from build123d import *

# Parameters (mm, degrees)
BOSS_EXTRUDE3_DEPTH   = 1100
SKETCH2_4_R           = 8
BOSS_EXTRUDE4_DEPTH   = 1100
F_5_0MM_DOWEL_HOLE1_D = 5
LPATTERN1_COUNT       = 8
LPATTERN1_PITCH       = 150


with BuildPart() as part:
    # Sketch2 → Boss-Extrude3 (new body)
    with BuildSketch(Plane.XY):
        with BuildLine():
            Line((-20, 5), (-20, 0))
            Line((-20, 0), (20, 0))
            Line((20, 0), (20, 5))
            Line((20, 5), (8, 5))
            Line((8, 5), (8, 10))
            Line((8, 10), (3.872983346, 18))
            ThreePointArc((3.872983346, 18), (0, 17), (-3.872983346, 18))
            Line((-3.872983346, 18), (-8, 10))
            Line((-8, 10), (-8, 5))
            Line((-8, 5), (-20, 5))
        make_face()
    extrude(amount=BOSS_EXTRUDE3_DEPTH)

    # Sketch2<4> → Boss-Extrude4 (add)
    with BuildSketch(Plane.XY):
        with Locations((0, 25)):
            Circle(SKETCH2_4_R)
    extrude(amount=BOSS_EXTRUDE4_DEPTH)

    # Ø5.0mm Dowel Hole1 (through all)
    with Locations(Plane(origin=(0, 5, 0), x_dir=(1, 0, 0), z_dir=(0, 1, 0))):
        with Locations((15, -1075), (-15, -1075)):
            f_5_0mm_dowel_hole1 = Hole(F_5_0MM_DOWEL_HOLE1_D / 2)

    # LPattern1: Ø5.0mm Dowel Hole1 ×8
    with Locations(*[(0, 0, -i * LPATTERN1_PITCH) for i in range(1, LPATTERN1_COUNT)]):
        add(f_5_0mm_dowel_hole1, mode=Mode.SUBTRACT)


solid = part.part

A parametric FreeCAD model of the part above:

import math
import FreeCAD as App
import Part
import Sketcher

doc = App.newDocument("Part")
body = doc.addObject("PartDesign::Body", "Body")

sketch1 = body.newObject("Sketcher::SketchObject", "Sketch")
sketch1.AttachmentSupport = (doc.getObject("XY_Plane"), [""])
sketch1.MapMode = "FlatFace"
sketch1.addGeometry(Part.LineSegment(App.Vector(-20, 5, 0), App.Vector(-20, 0, 0)), False)
sketch1.addGeometry(Part.LineSegment(App.Vector(-20, 0, 0), App.Vector(20, 0, 0)), False)
sketch1.addGeometry(Part.LineSegment(App.Vector(20, 0, 0), App.Vector(20, 5, 0)), False)
sketch1.addGeometry(Part.LineSegment(App.Vector(20, 5, 0), App.Vector(8, 5, 0)), False)
sketch1.addGeometry(Part.LineSegment(App.Vector(8, 5, 0), App.Vector(8, 10, 0)), False)
sketch1.addGeometry(Part.LineSegment(App.Vector(8, 10, 0), App.Vector(4, 18, 0)), False)
sketch1.addGeometry(Part.ArcOfCircle(Part.Circle(App.Vector(0, 25, 0), App.Vector(0, 0, 1), 8), math.radians(-119), math.radians(-61)), False)
sketch1.addGeometry(Part.LineSegment(App.Vector(-4, 18, 0), App.Vector(-8, 10, 0)), False)
sketch1.addGeometry(Part.LineSegment(App.Vector(-8, 10, 0), App.Vector(-8, 5, 0)), False)
sketch1.addGeometry(Part.LineSegment(App.Vector(-8, 5, 0), App.Vector(-20, 5, 0)), False)
sketch1.addConstraint(Sketcher.Constraint("Coincident", 0, 2, 1, 1))
sketch1.addConstraint(Sketcher.Constraint("Coincident", 1, 2, 2, 1))
sketch1.addConstraint(Sketcher.Constraint("Coincident", 2, 2, 3, 1))
sketch1.addConstraint(Sketcher.Constraint("Coincident", 3, 2, 4, 1))
sketch1.addConstraint(Sketcher.Constraint("Coincident", 4, 2, 5, 1))
sketch1.addConstraint(Sketcher.Constraint("Coincident", 5, 2, 6, 2))
sketch1.addConstraint(Sketcher.Constraint("Coincident", 6, 1, 7, 1))
sketch1.addConstraint(Sketcher.Constraint("Coincident", 7, 2, 8, 1))
sketch1.addConstraint(Sketcher.Constraint("Coincident", 8, 2, 9, 1))
sketch1.addConstraint(Sketcher.Constraint("Coincident", 9, 2, 0, 1))
sketch1.addConstraint(Sketcher.Constraint("Vertical", 0))
sketch1.addConstraint(Sketcher.Constraint("Horizontal", 1))
sketch1.addConstraint(Sketcher.Constraint("Vertical", 2))
sketch1.addConstraint(Sketcher.Constraint("Horizontal", 3))
sketch1.addConstraint(Sketcher.Constraint("Vertical", 4))
sketch1.addConstraint(Sketcher.Constraint("Vertical", 8))
sketch1.addConstraint(Sketcher.Constraint("Horizontal", 9))
sketch1.addConstraint(Sketcher.Constraint("Symmetric", 0, 2, 1, 2, -1, 1))
sketch1.addConstraint(Sketcher.Constraint("Symmetric", 5, 2, 6, 1, -2))
sketch1.addConstraint(Sketcher.Constraint("Symmetric", 4, 2, 7, 2, -2))
sketch1.addConstraint(Sketcher.Constraint("Horizontal", 3, 2, 8, 2))
sketch1.addConstraint(Sketcher.Constraint("Equal", 2, 4))
sketch1.addConstraint(Sketcher.Constraint("Radius", 6, 8.0))
sketch1.addConstraint(Sketcher.Constraint("DistanceX", 1, 1, 1, 2, 40.0))
sketch1.addConstraint(Sketcher.Constraint("DistanceX", 3, 2, 3, 1, 12.0))
sketch1.addConstraint(Sketcher.Constraint("DistanceY", 0, 2, 0, 1, 5.0))
sketch1.addConstraint(Sketcher.Constraint("DistanceY", -1, 1, 6, 3, 25.0))
sketch1.addConstraint(Sketcher.Constraint("DistanceY", -1, 1, 5, 2, 18.0))
pad1 = body.newObject("PartDesign::Pad", "Pad")
pad1.Profile = sketch1
pad1.Length = 1100

sketch2 = body.newObject("Sketcher::SketchObject", "Sketch001")
sketch2.AttachmentSupport = (doc.getObject("XY_Plane"), [""])
sketch2.MapMode = "FlatFace"
sketch2.addGeometry(Part.Circle(App.Vector(0, 25, 0), App.Vector(0, 0, 1), 8), False)
sketch2.addConstraint(Sketcher.Constraint("PointOnObject", 0, 3, -2))
sketch2.addConstraint(Sketcher.Constraint("Diameter", 0, 16.0))
sketch2.addConstraint(Sketcher.Constraint("DistanceY", -1, 1, 0, 3, 25.0))
pad2 = body.newObject("PartDesign::Pad", "Pad001")
pad2.Profile = sketch2
pad2.Length = 1100

sketch3 = body.newObject("Sketcher::SketchObject", "Sketch002")
sketch3.AttachmentSupport = (doc.getObject("XZ_Plane"), [""])
sketch3.MapMode = "FlatFace"
sketch3.AttachmentOffset = App.Placement(App.Vector(0, 0, -5), App.Rotation())
sketch3.addGeometry(Part.Circle(App.Vector(15, 1075, 0), App.Vector(0, 0, 1), 2.5), False)
sketch3.addGeometry(Part.Circle(App.Vector(-15, 1075, 0), App.Vector(0, 0, 1), 2.5), False)
sketch3.addConstraint(Sketcher.Constraint("Equal", 0, 1))
sketch3.addConstraint(Sketcher.Constraint("Symmetric", 0, 3, 1, 3, -2))
sketch3.addConstraint(Sketcher.Constraint("Diameter", 0, 5.0))
sketch3.addConstraint(Sketcher.Constraint("DistanceX", -1, 1, 0, 3, 15.0))
sketch3.addConstraint(Sketcher.Constraint("DistanceY", -1, 1, 0, 3, 1075.0))
doc.recompute()
hole = body.newObject("PartDesign::Hole", "Hole")
hole.Profile = sketch3
hole.ThreadType = "None"
hole.Diameter = 5
hole.DepthType = "ThroughAll"
hole.Reversed = True
doc.recompute()

linearpattern = body.newObject("PartDesign::LinearPattern", "LinearPattern")
linearpattern.Originals = [hole]
linearpattern.Direction = (doc.getObject("Z_Axis"), [""])
linearpattern.Mode = "offset"
linearpattern.Offset = 150
linearpattern.Occurrences = 8
linearpattern.Reversed = True
body.Tip = linearpattern

doc.recompute()
